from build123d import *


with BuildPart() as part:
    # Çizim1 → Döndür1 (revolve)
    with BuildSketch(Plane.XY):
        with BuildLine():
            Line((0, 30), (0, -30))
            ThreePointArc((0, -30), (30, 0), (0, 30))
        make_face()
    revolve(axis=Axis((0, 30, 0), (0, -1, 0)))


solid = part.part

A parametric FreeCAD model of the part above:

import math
import FreeCAD as App
import Part
import Sketcher

V = App.Vector

doc = App.newDocument("Part")
params = doc.addObject("Spreadsheet::Sheet", "Params")
for row, (alias, value) in enumerate([
    ("sketch1_radius", "30 mm"),
    ("revolution_angle", "360 deg"),
], start=1):
    params.set(f"A{row}", alias)
    params.set(f"B{row}", "=" + value)
    params.setAlias(f"B{row}", alias)

body = doc.addObject("PartDesign::Body", "Body")

# Sketch on XY plane
sketch1 = body.newObject("Sketcher::SketchObject", "Sketch")
sketch1.AttachmentSupport = (doc.getObject("XY_Plane"), [""])
sketch1.MapMode = "FlatFace"
sketch1.addGeometry(Part.LineSegment(V(0, 30, 0), V(0, -30, 0)), False)
sketch1.addGeometry(Part.ArcOfCircle(Part.Circle(V(0, 0, 0), V(0, 0, 1), 30), math.radians(-90), math.radians(90)), False)
sketch1.addConstraint(Sketcher.Constraint("Coincident", 0, 1, 1, 2))
sketch1.addConstraint(Sketcher.Constraint("Coincident", 1, 1, 0, 2))
sketch1.addConstraint(Sketcher.Constraint("Vertical", 0))
sketch1.addConstraint(Sketcher.Constraint("Coincident", 1, 3, -1, 1))
sketch1.addConstraint(Sketcher.Constraint("PointOnObject", 0, 1, -2))
sketch1.addConstraint(Sketcher.Constraint("Radius", 1, 30.0))
sketch1.setExpression("Constraints[5]", "Params.sketch1_radius")
revolution = body.newObject("PartDesign::Revolution", "Revolution")
revolution.Profile = sketch1
revolution.ReferenceAxis = (sketch1, ["V_Axis"])
revolution.setExpression("Angle", "Params.revolution_angle")

doc.recompute()
